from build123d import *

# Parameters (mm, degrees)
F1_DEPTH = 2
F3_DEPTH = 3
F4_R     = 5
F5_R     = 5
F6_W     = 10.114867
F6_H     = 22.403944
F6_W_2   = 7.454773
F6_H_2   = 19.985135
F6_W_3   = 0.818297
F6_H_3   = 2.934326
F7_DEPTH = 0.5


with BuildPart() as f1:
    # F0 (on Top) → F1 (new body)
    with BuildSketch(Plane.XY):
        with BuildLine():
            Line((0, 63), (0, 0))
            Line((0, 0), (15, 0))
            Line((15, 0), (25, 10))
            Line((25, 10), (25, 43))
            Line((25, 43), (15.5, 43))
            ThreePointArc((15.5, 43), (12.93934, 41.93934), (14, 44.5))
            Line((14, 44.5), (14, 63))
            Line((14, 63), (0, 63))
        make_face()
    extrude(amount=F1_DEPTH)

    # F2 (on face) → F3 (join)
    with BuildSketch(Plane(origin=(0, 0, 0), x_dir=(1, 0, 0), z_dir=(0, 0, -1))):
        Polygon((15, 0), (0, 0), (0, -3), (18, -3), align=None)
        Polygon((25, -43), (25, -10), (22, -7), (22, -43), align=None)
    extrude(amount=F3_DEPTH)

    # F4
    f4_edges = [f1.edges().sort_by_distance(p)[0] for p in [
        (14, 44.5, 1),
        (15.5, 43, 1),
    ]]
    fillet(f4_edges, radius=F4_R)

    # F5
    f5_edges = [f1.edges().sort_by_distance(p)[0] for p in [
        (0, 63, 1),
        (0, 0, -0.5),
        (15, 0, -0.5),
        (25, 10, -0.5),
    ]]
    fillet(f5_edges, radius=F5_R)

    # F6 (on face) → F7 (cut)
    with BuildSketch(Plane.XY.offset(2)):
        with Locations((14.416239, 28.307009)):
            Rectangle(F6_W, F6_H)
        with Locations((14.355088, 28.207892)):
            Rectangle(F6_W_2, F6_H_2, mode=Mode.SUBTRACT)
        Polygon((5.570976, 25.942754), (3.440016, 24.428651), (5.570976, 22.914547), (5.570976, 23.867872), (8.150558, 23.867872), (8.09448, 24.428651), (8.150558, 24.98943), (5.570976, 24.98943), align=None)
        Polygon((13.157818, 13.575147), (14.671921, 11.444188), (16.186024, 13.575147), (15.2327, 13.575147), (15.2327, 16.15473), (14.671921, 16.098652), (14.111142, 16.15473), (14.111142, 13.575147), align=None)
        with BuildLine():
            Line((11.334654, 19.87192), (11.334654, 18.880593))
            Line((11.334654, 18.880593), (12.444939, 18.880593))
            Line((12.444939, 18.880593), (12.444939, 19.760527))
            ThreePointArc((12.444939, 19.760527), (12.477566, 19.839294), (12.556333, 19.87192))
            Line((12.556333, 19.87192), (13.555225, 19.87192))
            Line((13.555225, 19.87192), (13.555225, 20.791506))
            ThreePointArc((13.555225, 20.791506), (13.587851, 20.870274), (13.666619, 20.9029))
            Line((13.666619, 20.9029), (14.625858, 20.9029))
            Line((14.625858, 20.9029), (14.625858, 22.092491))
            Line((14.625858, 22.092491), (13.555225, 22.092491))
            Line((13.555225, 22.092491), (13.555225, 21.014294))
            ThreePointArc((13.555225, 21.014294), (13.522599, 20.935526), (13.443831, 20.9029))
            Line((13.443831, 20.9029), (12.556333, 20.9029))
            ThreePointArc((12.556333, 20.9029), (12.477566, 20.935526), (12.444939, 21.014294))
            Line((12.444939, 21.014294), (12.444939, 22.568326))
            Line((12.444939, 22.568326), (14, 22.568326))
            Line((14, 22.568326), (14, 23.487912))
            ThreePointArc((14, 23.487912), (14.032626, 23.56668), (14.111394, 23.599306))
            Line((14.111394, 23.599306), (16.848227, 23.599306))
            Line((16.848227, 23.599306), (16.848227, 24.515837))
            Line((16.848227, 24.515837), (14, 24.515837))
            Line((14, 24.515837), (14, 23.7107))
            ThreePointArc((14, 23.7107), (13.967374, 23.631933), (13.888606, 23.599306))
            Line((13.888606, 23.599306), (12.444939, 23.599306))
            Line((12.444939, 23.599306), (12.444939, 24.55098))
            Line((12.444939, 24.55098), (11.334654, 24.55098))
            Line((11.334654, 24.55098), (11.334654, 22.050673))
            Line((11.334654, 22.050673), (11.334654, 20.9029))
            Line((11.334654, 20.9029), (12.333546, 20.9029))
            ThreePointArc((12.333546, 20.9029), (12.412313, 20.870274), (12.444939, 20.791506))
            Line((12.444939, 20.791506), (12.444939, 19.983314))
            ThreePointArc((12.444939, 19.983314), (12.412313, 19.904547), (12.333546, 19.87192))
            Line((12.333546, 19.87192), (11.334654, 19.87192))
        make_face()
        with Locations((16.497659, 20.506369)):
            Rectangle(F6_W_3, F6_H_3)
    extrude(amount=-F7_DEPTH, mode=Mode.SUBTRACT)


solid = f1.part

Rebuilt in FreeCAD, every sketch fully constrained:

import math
import FreeCAD as App
import Part
import Sketcher

V = App.Vector
Q = App.Units.Quantity


def edges_at(feature, points):
    """Names of the edges that pass closest to the given points."""
    edges = feature.Shape.Edges
    near = lambda p: min(range(len(edges)), key=lambda i: edges[i].distToShape(Part.Vertex(*p))[0])
    return sorted({f"Edge{near(p) + 1}" for p in points})


def add_polygon(sketch, points):
    """Adds a closed chain of lines whose ends are joined by coincident constraints."""
    first, n = sketch.GeometryCount, len(points)
    for a, b in zip(points, points[1:] + points[:1]):
        sketch.addGeometry(Part.LineSegment(App.Vector(*a, 0), App.Vector(*b, 0)), False)
    for i in range(n):
        sketch.addConstraint(Sketcher.Constraint("Coincident", first + i, 2, first + (i + 1) % n, 1))

doc = App.newDocument("Part")
body = doc.addObject("PartDesign::Body", "Body")

sketch1 = body.newObject("Sketcher::SketchObject", "Sketch")
sketch1.AttachmentSupport = (doc.getObject("XY_Plane"), [""])
sketch1.MapMode = "FlatFace"
sketch1.addGeometry([
    Part.LineSegment(V(0, 63, 0), V(0, 0, 0)),
    Part.LineSegment(V(0, 0, 0), V(15, 0, 0)),
    Part.LineSegment(V(15, 0, 0), V(25, 10, 0)),
    Part.LineSegment(V(25, 10, 0), V(25, 43, 0)),
    Part.LineSegment(V(25, 43, 0), V(15.5, 43, 0)),
    Part.ArcOfCircle(Part.Circle(V(14, 43, 0), V(0, 0, 1), 1.5), math.radians(90.000004), math.radians(359.999996)),
    Part.LineSegment(V(14, 44.5, 0), V(14, 63, 0)),
    Part.LineSegment(V(14, 63, 0), V(0, 63, 0)),
], False)
sketch1.addConstraint([
    Sketcher.Constraint("Coincident", 0, 2, 1, 1),
    Sketcher.Constraint("Coincident", 1, 2, 2, 1),
    Sketcher.Constraint("Coincident", 2, 2, 3, 1),
    Sketcher.Constraint("Coincident", 3, 2, 4, 1),
    Sketcher.Constraint("Coincident", 4, 2, 5, 2),
    Sketcher.Constraint("Coincident", 5, 1, 6, 1),
    Sketcher.Constraint("Coincident", 6, 2, 7, 1),
    Sketcher.Constraint("Coincident", 7, 2, 0, 1),
    Sketcher.Constraint("Vertical", 0),
    Sketcher.Constraint("Horizontal", 1),
    Sketcher.Constraint("Vertical", 3),
    Sketcher.Constraint("Horizontal", 4),
    Sketcher.Constraint("Vertical", 6),
    Sketcher.Constraint("Horizontal", 7),
    Sketcher.Constraint("Coincident", 0, 2, -1, 1),
    Sketcher.Constraint("Horizontal", 5, 3, 3, 2),
    Sketcher.Constraint("Radius", 5, 1.5),
    Sketcher.Constraint("DistanceX", 1, 1, 1, 2, 15.0),
    Sketcher.Constraint("DistanceX", 7, 2, 7, 1, 14.0),
    Sketcher.Constraint("DistanceY", 0, 2, 0, 1, 63.0),
    Sketcher.Constraint("DistanceY", 3, 1, 3, 2, 33.0),
    Sketcher.Constraint("Angle", 2, Q("45 deg")),
    Sketcher.Constraint("DistanceX", 4, 2, 4, 1, 9.5),
    Sketcher.Constraint("DistanceY", 6, 1, 6, 2, 18.5),
])
pad1 = body.newObject("PartDesign::Pad", "Pad")
pad1.Profile = sketch1
pad1.Length = 2

sketch2 = body.newObject("Sketcher::SketchObject", "Sketch001")
sketch2.AttachmentSupport = (doc.getObject("XY_Plane"), [""])
sketch2.MapMode = "FlatFace"
add_polygon(sketch2, [(15, 0), (0, 0), (0, 3), (18, 3)])
add_polygon(sketch2, [(25, 43), (25, 10), (22, 7), (22, 43)])
sketch2.addConstraint([
    Sketcher.Constraint("Horizontal", 0),
    Sketcher.Constraint("Vertical", 1),
    Sketcher.Constraint("Horizontal", 2),
    Sketcher.Constraint("Vertical", 4),
    Sketcher.Constraint("Vertical", 6),
    Sketcher.Constraint("Horizontal", 7),
    Sketcher.Constraint("Coincident", 0, 2, -1, 1),
    Sketcher.Constraint("Parallel", 3, 5),
    Sketcher.Constraint("Equal", 7, 1),
    Sketcher.Constraint("Equal", 3, 5),
    Sketcher.Constraint("DistanceX", 0, 2, 0, 1, 15.0),
    Sketcher.Constraint("DistanceX", 2, 1, 2, 2, 18.0),
    Sketcher.Constraint("DistanceY", 4, 2, 4, 1, 33.0),
    Sketcher.Constraint("DistanceX", -1, 1, 4, 2, 25.0),
    Sketcher.Constraint("DistanceY", -1, 1, 4, 2, 10.0),
])
pad2 = body.newObject("PartDesign::Pad", "Pad001")
pad2.Profile = sketch2
pad2.Length = 3
pad2.Reversed = True
doc.recompute()

fillet = body.newObject("PartDesign::Fillet", "Fillet")
fillet.Base = (pad2, edges_at(pad2, [(14, 44.5, 1), (15.5, 43, 1)]))
fillet.Radius = 5
doc.recompute()

fillet2 = body.newObject("PartDesign::Fillet", "Fillet001")
fillet2.Base = (fillet, edges_at(fillet, [
    (0, 63, 1),
    (0, 0, -0.5),
    (15, 0, -0.5),
    (25, 10, -0.5),
]))
fillet2.Radius = 5

sketch3 = body.newObject("Sketcher::SketchObject", "Sketch002")
sketch3.AttachmentSupport = (doc.getObject("XY_Plane"), [""])
sketch3.MapMode = "FlatFace"
sketch3.AttachmentOffset = App.Placement(V(0, 0, 2), App.Rotation())
add_polygon(sketch3, [(9.358806, 39.508981), (9.358806, 17.105037), (19.473672, 17.105037), (19.473672, 39.508981)])
add_polygon(sketch3, [(18.082475, 18.215325), (10.627702, 18.215325), (10.627702, 38.20046), (18.082475, 38.20046)])
add_polygon(sketch3, [(5.570976, 25.942754), (3.440016, 24.428651), (5.570976, 22.914547), (5.570976, 23.867872), (8.150558, 23.867872), (8.09448, 24.428651), (8.150558, 24.98943), (5.570976, 24.98943)])
add_polygon(sketch3, [(13.157818, 13.575147), (14.671921, 11.444188), (16.186024, 13.575147), (15.2327, 13.575147), (15.2327, 16.15473), (14.671921, 16.098652), (14.111142, 16.15473), (14.111142, 13.575147)])
sketch3.addGeometry(Part.LineSegment(V(11.334654, 19.87192, 0), V(11.334654, 18.880593, 0)), False)
sketch3.addGeometry(Part.LineSegment(V(11.334654, 18.880593, 0), V(12.444939, 18.880593, 0)), False)
sketch3.addGeometry(Part.LineSegment(V(12.444939, 18.880593, 0), V(12.444939, 19.760527, 0)), False)
sketch3.addGeometry(Part.ArcOfCircle(Part.Circle(V(12.556333, 19.760526, 0), V(0, 0, 1), 0.111394), math.radians(89.999917), math.radians(179.999568)), False)
sketch3.addGeometry(Part.LineSegment(V(12.556333, 19.87192, 0), V(13.555225, 19.87192, 0)), False)
sketch3.addGeometry(Part.LineSegment(V(13.555225, 19.87192, 0), V(13.555225, 20.791506, 0)), False)
sketch3.addGeometry(Part.ArcOfCircle(Part.Circle(V(13.666617, 20.791508, 0), V(0, 0, 1), 0.111392), math.radians(89.999039), math.radians(180.000961)), False)
sketch3.addGeometry(Part.LineSegment(V(13.666619, 20.9029, 0), V(14.625858, 20.9029, 0)), False)
sketch3.addGeometry(Part.LineSegment(V(14.625858, 20.9029, 0), V(14.625858, 22.092491, 0)), False)
sketch3.addGeometry(Part.LineSegment(V(14.625858, 22.092491, 0), V(13.555225, 22.092491, 0)), False)
sketch3.addGeometry(Part.LineSegment(V(13.555225, 22.092491, 0), V(13.555225, 21.014294, 0)), False)
sketch3.addGeometry(Part.ArcOfCircle(Part.Circle(V(13.443833, 21.014292, 0), V(0, 0, 1), 0.111392), math.radians(-90.000961), math.radians(0.000961)), False)
sketch3.addGeometry(Part.LineSegment(V(13.443831, 20.9029, 0), V(12.556333, 20.9029, 0)), False)
sketch3.addGeometry(Part.ArcOfCircle(Part.Circle(V(12.556333, 21.014294, 0), V(0, 0, 1), 0.111394), math.radians(179.999917), math.radians(270.000083)), False)
sketch3.addGeometry(Part.LineSegment(V(12.444939, 21.014294, 0), V(12.444939, 22.568326, 0)), False)
sketch3.addGeometry(Part.LineSegment(V(12.444939, 22.568326, 0), V(14, 22.568326, 0)), False)
sketch3.addGeometry(Part.LineSegment(V(14, 22.568326, 0), V(14, 23.487912, 0)), False)
sketch3.addGeometry(Part.ArcOfCircle(Part.Circle(V(14.111392, 23.487914, 0), V(0, 0, 1), 0.111392), math.radians(89.999039), math.radians(180.000961)), False)
sketch3.addGeometry(Part.LineSegment(V(14.111394, 23.599306, 0), V(16.848227, 23.599306, 0)), False)
sketch3.addGeometry(Part.LineSegment(V(16.848227, 23.599306, 0), V(16.848227, 24.515837, 0)), False)
sketch3.addGeometry(Part.LineSegment(V(16.848227, 24.515837, 0), V(14, 24.515837, 0)), False)
sketch3.addGeometry(Part.LineSegment(V(14, 24.515837, 0), V(14, 23.7107, 0)), False)
sketch3.addGeometry(Part.ArcOfCircle(Part.Circle(V(13.888606, 23.7107, 0), V(0, 0, 1), 0.111394), math.radians(-90.000083), math.radians(0.000083)), False)
sketch3.addGeometry(Part.LineSegment(V(13.888606, 23.599306, 0), V(12.444939, 23.599306, 0)), False)
sketch3.addGeometry(Part.LineSegment(V(12.444939, 23.599306, 0), V(12.444939, 24.55098, 0)), False)
sketch3.addGeometry(Part.LineSegment(V(12.444939, 24.55098, 0), V(11.334654, 24.55098, 0)), False)
sketch3.addGeometry(Part.LineSegment(V(11.334654, 24.55098, 0), V(11.334654, 20.9029, 0)), False)
sketch3.addGeometry(Part.LineSegment(V(11.334654, 20.9029, 0), V(12.333546, 20.9029, 0)), False)
sketch3.addGeometry(Part.ArcOfCircle(Part.Circle(V(12.333547, 20.791508, 0), V(0, 0, 1), 0.111392), math.radians(-0.000961), math.radians(90.000446)), False)
sketch3.addGeometry(Part.LineSegment(V(12.444939, 20.791506, 0), V(12.444939, 19.983314, 0)), False)
sketch3.addGeometry(Part.ArcOfCircle(Part.Circle(V(12.333545, 19.983314, 0), V(0, 0, 1), 0.111394), math.radians(-89.999568), math.radians(0.000083)), False)
sketch3.addGeometry(Part.LineSegment(V(12.333546, 19.87192, 0), V(11.334654, 19.87192, 0)), False)
add_polygon(sketch3, [(16.088511, 21.973532), (16.088511, 19.039206), (16.906807, 19.039206), (16.906807, 21.973532)])
sketch3.addConstraint([
    Sketcher.Constraint("Coincident", 24, 2, 25, 1),
    Sketcher.Constraint("Coincident", 25, 2, 26, 1),
    Sketcher.Constraint("Coincident", 26, 2, 27, 2),
    Sketcher.Constraint("Tangent", 27, 1, 28, 1),
    Sketcher.Constraint("Coincident", 28, 2, 29, 1),
    Sketcher.Constraint("Coincident", 29, 2, 30, 2),
    Sketcher.Constraint("Coincident", 30, 1, 31, 1),
    Sketcher.Constraint("Coincident", 31, 2, 32, 1),
    Sketcher.Constraint("Coincident", 32, 2, 33, 1),
    Sketcher.Constraint("Coincident", 33, 2, 34, 1),
    Sketcher.Constraint("Coincident", 34, 2, 35, 2),
    Sketcher.Constraint("Coincident", 35, 1, 36, 1),
    Sketcher.Constraint("Tangent", 36, 2, 37, 2),
    Sketcher.Constraint("Tangent", 37, 1, 38, 1),
    Sketcher.Constraint("Coincident", 38, 2, 39, 1),
    Sketcher.Constraint("Coincident", 39, 2, 40, 1),
    Sketcher.Constraint("Coincident", 40, 2, 41, 2),
    Sketcher.Constraint("Coincident", 41, 1, 42, 1),
    Sketcher.Constraint("Coincident", 42, 2, 43, 1),
    Sketcher.Constraint("Coincident", 43, 2, 44, 1),
    Sketcher.Constraint("Coincident", 44, 2, 45, 1),
    Sketcher.Constraint("Tangent", 45, 2, 46, 2),
    Sketcher.Constraint("Tangent", 46, 1, 47, 1),
    Sketcher.Constraint("Coincident", 47, 2, 48, 1),
    Sketcher.Constraint("Coincident", 48, 2, 49, 1),
    Sketcher.Constraint("Coincident", 49, 2, 50, 1),
    Sketcher.Constraint("Coincident", 50, 2, 51, 1),
    Sketcher.Constraint("Coincident", 51, 2, 52, 2),
    Sketcher.Constraint("Coincident", 52, 1, 53, 1),
    Sketcher.Constraint("Tangent", 53, 2, 54, 2),
    Sketcher.Constraint("Coincident", 54, 1, 55, 1),
    Sketcher.Constraint("Coincident", 55, 2, 24, 1),
    Sketcher.Constraint("Vertical", 0),
    Sketcher.Constraint("Horizontal", 1),
    Sketcher.Constraint("Vertical", 2),
    Sketcher.Constraint("Horizontal", 3),
    Sketcher.Constraint("Horizontal", 4),
    Sketcher.Constraint("Vertical", 5),
    Sketcher.Constraint("Horizontal", 6),
    Sketcher.Constraint("Vertical", 7),
    Sketcher.Constraint("Vertical", 10),
    Sketcher.Constraint("Horizontal", 11),
    Sketcher.Constraint("Horizontal", 14),
    Sketcher.Constraint("Vertical", 15),
    Sketcher.Constraint("Horizontal", 18),
    Sketcher.Constraint("Vertical", 19),
    Sketcher.Constraint("Vertical", 22),
    Sketcher.Constraint("Horizontal", 23),
    Sketcher.Constraint("Vertical", 24),
    Sketcher.Constraint("Horizontal", 25),
    Sketcher.Constraint("Vertical", 26),
    Sketcher.Constraint("Horizontal", 28),
    Sketcher.Constraint("Vertical", 29),
    Sketcher.Constraint("Horizontal", 31),
    Sketcher.Constraint("Vertical", 32),
    Sketcher.Constraint("Horizontal", 33),
    Sketcher.Constraint("Vertical", 34),
    Sketcher.Constraint("Horizontal", 36),
    Sketcher.Constraint("Vertical", 38),
    Sketcher.Constraint("Horizontal", 39),
    Sketcher.Constraint("Vertical", 40),
    Sketcher.Constraint("Horizontal", 42),
    Sketcher.Constraint("Vertical", 43),
    Sketcher.Constraint("Horizontal", 44),
    Sketcher.Constraint("Vertical", 45),
    Sketcher.Constraint("Horizontal", 47),
    Sketcher.Constraint("Vertical", 48),
    Sketcher.Constraint("Horizontal", 49),
    Sketcher.Constraint("Vertical", 50),
    Sketcher.Constraint("Horizontal", 51),
    Sketcher.Constraint("Vertical", 53),
    Sketcher.Constraint("Horizontal", 55),
    Sketcher.Constraint("Vertical", 56),
    Sketcher.Constraint("Horizontal", 57),
    Sketcher.Constraint("Vertical", 58),
    Sketcher.Constraint("Horizontal", 59),
    Sketcher.Constraint("Equal", 27, 30),
    Sketcher.Constraint("Equal", 30, 35),
    Sketcher.Constraint("Equal", 35, 37),
    Sketcher.Constraint("Equal", 37, 41),
    Sketcher.Constraint("Equal", 41, 46),
    Sketcher.Constraint("Equal", 46, 52),
    Sketcher.Constraint("Equal", 52, 54),
    Sketcher.Constraint("Perpendicular", 8, 16),
    Sketcher.Constraint("Perpendicular", 9, 17),
    Sketcher.Constraint("Perpendicular", 12, 20),
    Sketcher.Constraint("Perpendicular", 13, 21),
    Sketcher.Constraint("Horizontal", 30, 3, 52, 3),
    Sketcher.Constraint("Horizontal", 8, 2, 12, 2),
    Sketcher.Constraint("Horizontal", 19, 2, 21, 2),
    Sketcher.Constraint("Horizontal", 18, 2, 22, 2),
    Sketcher.Constraint("Horizontal", 27, 3, 26, 2),
    Sketcher.Constraint("Horizontal", 52, 3, 29, 2),
    Sketcher.Constraint("Horizontal", 37, 3, 34, 2),
    Sketcher.Constraint("Horizontal", 31, 2, 35, 1),
    Sketcher.Constraint("Horizontal", 41, 3, 40, 2),
    Sketcher.Constraint("Horizontal", 42, 2, 46, 1),
    Sketcher.Constraint("Horizontal", 29, 2, 52, 1),
    Sketcher.Constraint("Horizontal", 28, 2, 54, 1),
    Sketcher.Constraint("Vertical", 27, 3, 37, 3),
    Sketcher.Constraint("Vertical", 11, 2, 13, 2),
    Sketcher.Constraint("Vertical", 10, 2, 14, 2),
    Sketcher.Constraint("Vertical", 16, 2, 20, 2),
    Sketcher.Constraint("Vertical", 29, 2, 33, 2),
    Sketcher.Constraint("Vertical", 40, 2, 44, 2),
    Sketcher.Constraint("Vertical", 38, 2, 47, 2),
    Sketcher.Constraint("Vertical", 24, 2, 49, 2),
    Sketcher.Constraint("Vertical", 54, 3, 51, 2),
    Sketcher.Constraint("Vertical", 48, 2, 52, 1),
    Sketcher.Constraint("Vertical", 51, 2, 54, 1),
    Sketcher.Constraint("Equal", 18, 23),
    Sketcher.Constraint("Equal", 28, 51),
    Sketcher.Constraint("Equal", 23, 10),
    Sketcher.Constraint("Equal", 14, 19),
    Sketcher.Constraint("Equal", 29, 40),
    Sketcher.Constraint("Equal", 8, 9),
    Sketcher.Constraint("Equal", 9, 16),
    Sketcher.Constraint("DistanceX", -1, 1, 39, 2, 14.0),
    Sketcher.Constraint("Radius", 27, 0.111394),
    Sketcher.Constraint("DistanceX", 28, 1, 28, 2, 0.998892),
    Sketcher.Constraint("DistanceX", 31, 1, 31, 2, 0.959239),
    Sketcher.Constraint("DistanceX", 39, 1, 39, 2, 1.555061),
    Sketcher.Constraint("DistanceY", 32, 1, 32, 2, 1.189591),
    Sketcher.Constraint("DistanceY", 38, 1, 38, 2, 1.554032),
    Sketcher.Constraint("DistanceY", 43, 1, 43, 2, 0.916531),
    Sketcher.Constraint("DistanceY", 50, 2, 50, 1, 3.64808),
    Sketcher.Constraint("DistanceY", 53, 2, 53, 1, 0.808192),
    Sketcher.Constraint("DistanceY", -1, 1, 46, 3, 23.7107),
    Sketcher.Constraint("DistanceX", -1, 1, 4, 2, 10.627702),
    Sketcher.Constraint("DistanceX", -1, 1, 18, 2, 15.2327),
    Sketcher.Constraint("DistanceX", 1, 1, 1, 2, 10.114867),
    Sketcher.Constraint("DistanceX", 4, 2, 4, 1, 7.454773),
    Sketcher.Constraint("DistanceX", 11, 1, 11, 2, 2.579582),
    Sketcher.Constraint("DistanceX", 18, 2, 18, 1, 0.953324),
    Sketcher.Constraint("DistanceX", 33, 2, 33, 1, 1.070633),
    Sketcher.Constraint("DistanceX", 36, 2, 36, 1, 0.887498),
    Sketcher.Constraint("DistanceX", 42, 1, 42, 2, 2.736833),
    Sketcher.Constraint("DistanceX", 44, 2, 44, 1, 2.848227),
    Sketcher.Constraint("DistanceX", 57, 1, 57, 2, 0.818297),
    Sketcher.Constraint("DistanceY", 0, 2, 0, 1, 22.403944),
    Sketcher.Constraint("DistanceY", 5, 1, 5, 2, 19.985135),
    Sketcher.Constraint("DistanceY", 24, 2, 24, 1, 0.991327),
    Sketcher.Constraint("DistanceY", 56, 2, 56, 1, 2.934326),
    Sketcher.Constraint("DistanceY", -1, 1, 2, 2, 39.508981),
    Sketcher.Constraint("DistanceY", -1, 1, 5, 2, 38.20046),
    Sketcher.Constraint("DistanceY", -1, 1, 8, 2, 24.428651),
    Sketcher.Constraint("DistanceY", -1, 1, 10, 2, 23.867872),
    Sketcher.Constraint("DistanceX", -1, 1, 12, 2, 8.09448),
    Sketcher.Constraint("DistanceY", -1, 1, 19, 2, 16.15473),
    Sketcher.Constraint("DistanceX", -1, 1, 56, 2, 16.088511),
    Sketcher.Constraint("DistanceY", -1, 1, 58, 2, 21.973532),
    Sketcher.Constraint("Distance", 8, 2.614096),
    Sketcher.Constraint("Distance", 12, 0.563576),
    Sketcher.Constraint("DistanceX", -1, 1, 0, 2, 9.358806),
])
pocket1 = body.newObject("PartDesign::Pocket", "Pocket")
pocket1.Profile = sketch3
pocket1.Length = 0.5

doc.recompute()
